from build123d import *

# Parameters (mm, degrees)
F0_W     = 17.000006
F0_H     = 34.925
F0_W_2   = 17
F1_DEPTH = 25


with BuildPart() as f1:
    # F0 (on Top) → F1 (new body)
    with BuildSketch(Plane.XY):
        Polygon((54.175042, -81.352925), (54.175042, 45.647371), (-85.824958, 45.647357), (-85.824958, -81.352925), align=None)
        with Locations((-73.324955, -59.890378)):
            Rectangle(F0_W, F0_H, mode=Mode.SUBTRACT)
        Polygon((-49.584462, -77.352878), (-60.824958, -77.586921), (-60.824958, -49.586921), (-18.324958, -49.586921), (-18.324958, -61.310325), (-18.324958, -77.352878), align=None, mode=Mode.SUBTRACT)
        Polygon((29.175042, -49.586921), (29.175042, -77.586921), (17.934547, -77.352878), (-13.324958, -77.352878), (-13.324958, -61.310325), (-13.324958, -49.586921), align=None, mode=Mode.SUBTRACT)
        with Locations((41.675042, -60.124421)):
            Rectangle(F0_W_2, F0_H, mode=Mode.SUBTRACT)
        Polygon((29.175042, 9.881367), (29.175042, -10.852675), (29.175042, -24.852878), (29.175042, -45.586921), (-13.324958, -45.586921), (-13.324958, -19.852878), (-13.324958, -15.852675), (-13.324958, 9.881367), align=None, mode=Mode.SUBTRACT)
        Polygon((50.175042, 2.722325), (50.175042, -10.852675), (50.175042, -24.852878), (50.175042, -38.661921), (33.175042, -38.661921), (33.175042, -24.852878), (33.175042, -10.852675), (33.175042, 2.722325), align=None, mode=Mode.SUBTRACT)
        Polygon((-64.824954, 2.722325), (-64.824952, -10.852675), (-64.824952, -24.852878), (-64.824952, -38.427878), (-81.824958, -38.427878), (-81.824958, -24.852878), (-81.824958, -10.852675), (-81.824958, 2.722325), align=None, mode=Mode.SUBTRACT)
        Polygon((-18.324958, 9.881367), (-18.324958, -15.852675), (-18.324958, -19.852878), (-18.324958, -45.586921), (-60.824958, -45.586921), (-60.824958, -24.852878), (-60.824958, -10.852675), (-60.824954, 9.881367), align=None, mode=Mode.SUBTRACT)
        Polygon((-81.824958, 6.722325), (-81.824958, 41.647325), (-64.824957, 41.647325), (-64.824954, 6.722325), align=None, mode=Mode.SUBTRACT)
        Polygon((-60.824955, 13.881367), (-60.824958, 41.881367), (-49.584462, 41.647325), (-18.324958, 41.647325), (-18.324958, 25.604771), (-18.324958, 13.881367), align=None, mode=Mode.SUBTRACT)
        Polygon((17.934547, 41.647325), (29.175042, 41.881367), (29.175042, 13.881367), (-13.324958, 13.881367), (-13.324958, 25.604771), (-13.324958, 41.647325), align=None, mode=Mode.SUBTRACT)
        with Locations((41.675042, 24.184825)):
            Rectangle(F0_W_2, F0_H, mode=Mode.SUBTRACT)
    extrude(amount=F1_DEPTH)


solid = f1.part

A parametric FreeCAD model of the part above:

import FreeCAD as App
import Part
import Sketcher
from FreeCAD import Vector

doc = App.newDocument("Part")
body = doc.addObject("PartDesign::Body", "Body")

sketch1 = doc.addObject("Sketcher::SketchObject", "Sketch")
body.addObject(sketch1)
sketch1.AttachmentSupport = (doc.XY_Plane, [""])
sketch1.MapMode = "FlatFace"
sketch1.addGeometry([
    Part.LineSegment(Vector(54, -81, 0), Vector(54, 46, 0)),
    Part.LineSegment(Vector(54, 46, 0), Vector(-86, 46, 0)),
    Part.LineSegment(Vector(-86, 46, 0), Vector(-86, -81, 0)),
    Part.LineSegment(Vector(-86, -81, 0), Vector(54, -81, 0)),
    Part.LineSegment(Vector(-65, -77, 0), Vector(-82, -77, 0)),
    Part.LineSegment(Vector(-82, -77, 0), Vector(-82, -42, 0)),
    Part.LineSegment(Vector(-82, -42, 0), Vector(-65, -42, 0)),
    Part.LineSegment(Vector(-65, -42, 0), Vector(-65, -77, 0)),
    Part.LineSegment(Vector(-18, -77, 0), Vector(-50, -77, 0)),
    Part.LineSegment(Vector(-50, -77, 0), Vector(-61, -78, 0)),
    Part.LineSegment(Vector(-61, -78, 0), Vector(-61, -50, 0)),
    Part.LineSegment(Vector(-61, -50, 0), Vector(-18, -50, 0)),
    Part.LineSegment(Vector(-18, -50, 0), Vector(-18, -77, 0)),
    Part.LineSegment(Vector(-13, -50, 0), Vector(29, -50, 0)),
    Part.LineSegment(Vector(29, -50, 0), Vector(29, -78, 0)),
    Part.LineSegment(Vector(29, -78, 0), Vector(18, -77, 0)),
    Part.LineSegment(Vector(18, -77, 0), Vector(-13, -77, 0)),
    Part.LineSegment(Vector(-13, -77, 0), Vector(-13, -50, 0)),
    Part.LineSegment(Vector(50, -78, 0), Vector(33, -78, 0)),
    Part.LineSegment(Vector(33, -78, 0), Vector(33, -43, 0)),
    Part.LineSegment(Vector(33, -43, 0), Vector(50, -43, 0)),
    Part.LineSegment(Vector(50, -43, 0), Vector(50, -78, 0)),
    Part.LineSegment(Vector(33, 3, 0), Vector(50, 3, 0)),
    Part.LineSegment(Vector(50, 3, 0), Vector(50, -39, 0)),
    Part.LineSegment(Vector(50, -39, 0), Vector(33, -39, 0)),
    Part.LineSegment(Vector(33, -39, 0), Vector(33, 3, 0)),
    Part.LineSegment(Vector(-82, 3, 0), Vector(-65, 3, 0)),
    Part.LineSegment(Vector(-65, 3, 0), Vector(-65, -11, 0)),
    Part.LineSegment(Vector(-65, -11, 0), Vector(-65, -38, 0)),
    Part.LineSegment(Vector(-65, -38, 0), Vector(-82, -38, 0)),
    Part.LineSegment(Vector(-82, -38, 0), Vector(-82, 3, 0)),
    Part.LineSegment(Vector(-61, 10, 0), Vector(-18, 10, 0)),
    Part.LineSegment(Vector(-18, 10, 0), Vector(-18, -46, 0)),
    Part.LineSegment(Vector(-18, -46, 0), Vector(-61, -46, 0)),
    Part.LineSegment(Vector(-61, -46, 0), Vector(-61, -11, 0)),
    Part.LineSegment(Vector(-61, -11, 0), Vector(-61, 10, 0)),
    Part.LineSegment(Vector(-65, 7, 0), Vector(-82, 7, 0)),
    Part.LineSegment(Vector(-82, 7, 0), Vector(-82, 42, 0)),
    Part.LineSegment(Vector(-82, 42, 0), Vector(-65, 42, 0)),
    Part.LineSegment(Vector(-65, 42, 0), Vector(-65, 7, 0)),
    Part.LineSegment(Vector(-18, 14, 0), Vector(-61, 14, 0)),
    Part.LineSegment(Vector(-61, 14, 0), Vector(-61, 42, 0)),
    Part.LineSegment(Vector(-61, 42, 0), Vector(-50, 42, 0)),
    Part.LineSegment(Vector(-50, 42, 0), Vector(-18, 42, 0)),
    Part.LineSegment(Vector(-18, 42, 0), Vector(-18, 14, 0)),
    Part.LineSegment(Vector(-13, 10, 0), Vector(29, 10, 0)),
    Part.LineSegment(Vector(29, 10, 0), Vector(29, -46, 0)),
    Part.LineSegment(Vector(29, -46, 0), Vector(-13, -46, 0)),
    Part.LineSegment(Vector(-13, -46, 0), Vector(-13, 10, 0)),
    Part.LineSegment(Vector(-13, 42, 0), Vector(18, 42, 0)),
    Part.LineSegment(Vector(18, 42, 0), Vector(29, 42, 0)),
    Part.LineSegment(Vector(29, 42, 0), Vector(29, 14, 0)),
    Part.LineSegment(Vector(29, 14, 0), Vector(-13, 14, 0)),
    Part.LineSegment(Vector(-13, 14, 0), Vector(-13, 42, 0)),
    Part.LineSegment(Vector(50, 7, 0), Vector(33, 7, 0)),
    Part.LineSegment(Vector(33, 7, 0), Vector(33, 42, 0)),
    Part.LineSegment(Vector(33, 42, 0), Vector(50, 42, 0)),
    Part.LineSegment(Vector(50, 42, 0), Vector(50, 7, 0)),
], False)
sketch1.addConstraint([
    Sketcher.Constraint("Coincident", 0, 2, 1, 1),
    Sketcher.Constraint("Coincident", 1, 2, 2, 1),
    Sketcher.Constraint("Coincident", 2, 2, 3, 1),
    Sketcher.Constraint("Coincident", 3, 2, 0, 1),
    Sketcher.Constraint("Coincident", 4, 2, 5, 1),
    Sketcher.Constraint("Coincident", 5, 2, 6, 1),
    Sketcher.Constraint("Coincident", 6, 2, 7, 1),
    Sketcher.Constraint("Coincident", 7, 2, 4, 1),
    Sketcher.Constraint("Coincident", 8, 2, 9, 1),
    Sketcher.Constraint("Coincident", 9, 2, 10, 1),
    Sketcher.Constraint("Coincident", 10, 2, 11, 1),
    Sketcher.Constraint("Coincident", 11, 2, 12, 1),
    Sketcher.Constraint("Coincident", 12, 2, 8, 1),
    Sketcher.Constraint("Coincident", 13, 2, 14, 1),
    Sketcher.Constraint("Coincident", 14, 2, 15, 1),
    Sketcher.Constraint("Coincident", 15, 2, 16, 1),
    Sketcher.Constraint("Coincident", 16, 2, 17, 1),
    Sketcher.Constraint("Coincident", 17, 2, 13, 1),
    Sketcher.Constraint("Coincident", 18, 2, 19, 1),
    Sketcher.Constraint("Coincident", 19, 2, 20, 1),
    Sketcher.Constraint("Coincident", 20, 2, 21, 1),
    Sketcher.Constraint("Coincident", 21, 2, 18, 1),
    Sketcher.Constraint("Coincident", 22, 2, 23, 1),
    Sketcher.Constraint("Coincident", 23, 2, 24, 1),
    Sketcher.Constraint("Coincident", 24, 2, 25, 1),
    Sketcher.Constraint("Coincident", 25, 2, 22, 1),
    Sketcher.Constraint("Coincident", 26, 2, 27, 1),
    Sketcher.Constraint("Coincident", 27, 2, 28, 1),
    Sketcher.Constraint("Coincident", 28, 2, 29, 1),
    Sketcher.Constraint("Coincident", 29, 2, 30, 1),
    Sketcher.Constraint("Coincident", 30, 2, 26, 1),
    Sketcher.Constraint("Coincident", 31, 2, 32, 1),
    Sketcher.Constraint("Coincident", 32, 2, 33, 1),
    Sketcher.Constraint("Coincident", 33, 2, 34, 1),
    Sketcher.Constraint("Coincident", 34, 2, 35, 1),
    Sketcher.Constraint("Coincident", 35, 2, 31, 1),
    Sketcher.Constraint("Coincident", 36, 2, 37, 1),
    Sketcher.Constraint("Coincident", 37, 2, 38, 1),
    Sketcher.Constraint("Coincident", 38, 2, 39, 1),
    Sketcher.Constraint("Coincident", 39, 2, 36, 1),
    Sketcher.Constraint("Coincident", 40, 2, 41, 1),
    Sketcher.Constraint("Coincident", 41, 2, 42, 1),
    Sketcher.Constraint("Coincident", 42, 2, 43, 1),
    Sketcher.Constraint("Coincident", 43, 2, 44, 1),
    Sketcher.Constraint("Coincident", 44, 2, 40, 1),
    Sketcher.Constraint("Coincident", 45, 2, 46, 1),
    Sketcher.Constraint("Coincident", 46, 2, 47, 1),
    Sketcher.Constraint("Coincident", 47, 2, 48, 1),
    Sketcher.Constraint("Coincident", 48, 2, 45, 1),
    Sketcher.Constraint("Coincident", 49, 2, 50, 1),
    Sketcher.Constraint("Coincident", 50, 2, 51, 1),
    Sketcher.Constraint("Coincident", 51, 2, 52, 1),
    Sketcher.Constraint("Coincident", 52, 2, 53, 1),
    Sketcher.Constraint("Coincident", 53, 2, 49, 1),
    Sketcher.Constraint("Coincident", 54, 2, 55, 1),
    Sketcher.Constraint("Coincident", 55, 2, 56, 1),
    Sketcher.Constraint("Coincident", 56, 2, 57, 1),
    Sketcher.Constraint("Coincident", 57, 2, 54, 1),
    Sketcher.Constraint("Vertical", 0),
    Sketcher.Constraint("Vertical", 2),
    Sketcher.Constraint("Horizontal", 3),
    Sketcher.Constraint("Horizontal", 4),
    Sketcher.Constraint("Vertical", 5),
    Sketcher.Constraint("Horizontal", 6),
    Sketcher.Constraint("Vertical", 7),
    Sketcher.Constraint("Horizontal", 8),
    Sketcher.Constraint("Vertical", 10),
    Sketcher.Constraint("Horizontal", 11),
    Sketcher.Constraint("Vertical", 12),
    Sketcher.Constraint("Horizontal", 13),
    Sketcher.Constraint("Vertical", 14),
    Sketcher.Constraint("Horizontal", 16),
    Sketcher.Constraint("Vertical", 17),
    Sketcher.Constraint("Horizontal", 18),
    Sketcher.Constraint("Vertical", 19),
    Sketcher.Constraint("Horizontal", 20),
    Sketcher.Constraint("Vertical", 21),
    Sketcher.Constraint("Horizontal", 22),
    Sketcher.Constraint("Vertical", 23),
    Sketcher.Constraint("Horizontal", 24),
    Sketcher.Constraint("Vertical", 25),
    Sketcher.Constraint("Horizontal", 26),
    Sketcher.Constraint("Vertical", 28),
    Sketcher.Constraint("Horizontal", 29),
    Sketcher.Constraint("Vertical", 30),
    Sketcher.Constraint("Horizontal", 31),
    Sketcher.Constraint("Vertical", 32),
    Sketcher.Constraint("Horizontal", 33),
    Sketcher.Constraint("Vertical", 34),
    Sketcher.Constraint("Horizontal", 36),
    Sketcher.Constraint("Vertical", 37),
    Sketcher.Constraint("Horizontal", 38),
    Sketcher.Constraint("Horizontal", 40),
    Sketcher.Constraint("Horizontal", 43),
    Sketcher.Constraint("Vertical", 44),
    Sketcher.Constraint("Horizontal", 45),
    Sketcher.Constraint("Vertical", 46),
    Sketcher.Constraint("Horizontal", 47),
    Sketcher.Constraint("Vertical", 48),
    Sketcher.Constraint("Horizontal", 49),
    Sketcher.Constraint("Vertical", 51),
    Sketcher.Constraint("Horizontal", 52),
    Sketcher.Constraint("Vertical", 53),
    Sketcher.Constraint("Horizontal", 54),
    Sketcher.Constraint("Vertical", 55),
    Sketcher.Constraint("Horizontal", 56),
    Sketcher.Constraint("Vertical", 57),
    Sketcher.Constraint("Perpendicular", 1, 27),
    Sketcher.Constraint("Parallel", 27, 35),
    Sketcher.Constraint("Parallel", 35, 39),
    Sketcher.Constraint("Parallel", 39, 41),
    Sketcher.Constraint("Parallel", 15, 42),
    Sketcher.Constraint("Parallel", 9, 50),
    Sketcher.Constraint("Horizontal", 7, 2, 8, 2),
    Sketcher.Constraint("Horizontal", 11, 2, 13, 2),
    Sketcher.Constraint("Horizontal", 9, 2, 14, 2),
    Sketcher.Constraint("Horizontal", 12, 2, 15, 2),
    Sketcher.Constraint("Horizontal", 14, 2, 18, 2),
    Sketcher.Constraint("Horizontal", 25, 2, 26, 2),
    Sketcher.Constraint("Horizontal", 27, 2, 34, 2),
    Sketcher.Constraint("Horizontal", 38, 2, 42, 2),
    Sketcher.Constraint("Horizontal", 35, 2, 45, 2),
    Sketcher.Constraint("Horizontal", 33, 2, 46, 2),
    Sketcher.Constraint("Horizontal", 43, 2, 49, 2),
    Sketcher.Constraint("Horizontal", 41, 2, 50, 2),
    Sketcher.Constraint("Horizontal", 44, 2, 51, 2),
    Sketcher.Constraint("Horizontal", 39, 2, 54, 2),
    Sketcher.Constraint("Horizontal", 53, 2, 55, 2),
    Sketcher.Constraint("Vertical", 21, 2, 22, 2),
    Sketcher.Constraint("Vertical", 19, 2, 24, 2),
    Sketcher.Constraint("Vertical", 7, 2, 27, 2),
    Sketcher.Constraint("Vertical", 5, 2, 29, 2),
    Sketcher.Constraint("Vertical", 12, 2, 31, 2),
    Sketcher.Constraint("Vertical", 10, 2, 33, 2),
    Sketcher.Constraint("Vertical", 30, 2, 36, 2),
    Sketcher.Constraint("Vertical", 26, 2, 39, 2),
    Sketcher.Constraint("Vertical", 35, 2, 40, 2),
    Sketcher.Constraint("Vertical", 34, 2, 41, 2),
    Sketcher.Constraint("Vertical", 8, 2, 42, 2),
    Sketcher.Constraint("Vertical", 32, 2, 43, 2),
    Sketcher.Constraint("Vertical", 14, 2, 45, 2),
    Sketcher.Constraint("Vertical", 17, 2, 47, 2),
    Sketcher.Constraint("Vertical", 15, 2, 49, 2),
    Sketcher.Constraint("Vertical", 46, 2, 50, 2),
    Sketcher.Constraint("Vertical", 48, 2, 52, 2),
    Sketcher.Constraint("Vertical", 25, 2, 54, 2),
    Sketcher.Constraint("Vertical", 23, 2, 56, 2),
    Sketcher.Constraint("Equal", 11, 13),
    Sketcher.Constraint("Equal", 24, 38),
    Sketcher.Constraint("Equal", 7, 19),
    Sketcher.Constraint("Equal", 21, 37),
    Sketcher.Constraint("Equal", 17, 44),
    Sketcher.Constraint("DistanceX", 3, 1, 3, 2, 140.0),
    Sketcher.Constraint("DistanceX", 18, 2, 18, 1, 17.0),
    Sketcher.Constraint("DistanceY", 10, 1, 10, 2, 28.0),
    Sketcher.Constraint("DistanceX", 11, 1, 11, 2, 42.5),
    Sketcher.Constraint("DistanceX", 2, 2, 4, 2, 4.0),
    Sketcher.Constraint("DistanceX", 4, 2, 9, 2, 21.0),
    Sketcher.Constraint("DistanceX", 13, 2, 3, 2, 25.0),
    Sketcher.Constraint("DistanceX", 14, 2, 18, 2, 4.0),
    Sketcher.Constraint("DistanceY", 20, 2, 23, 2, 4.0),
    Sketcher.Constraint("DistanceY", 6, 2, 28, 2, 4.0),
    Sketcher.Constraint("DistanceY", 11, 2, 32, 2, 4.0),
    Sketcher.Constraint("DistanceY", 30, 2, 36, 2, 4.0),
    Sketcher.Constraint("DistanceY", 35, 2, 40, 2, 4.0),
    Sketcher.Constraint("DistanceY", 5, 1, 5, 2, 34.925),
    Sketcher.Constraint("Distance", 27, 13.575),
    Sketcher.Constraint("DistanceY", 2, 2, 2, 1, 127.000282),
    Sketcher.Constraint("DistanceY", 44, 2, 44, 1, 27.765958),
    Sketcher.Constraint("Distance", 15, 11.242931),
    Sketcher.Constraint("DistanceY", 23, 2, 23, 1, 41.384246),
    Sketcher.Constraint("DistanceX", -1, 1, 0, 2, 54.175042),
    Sketcher.Constraint("DistanceY", -1, 1, 0, 2, 45.647371),
    Sketcher.Constraint("DistanceY", 4, 2, -1, 1, 77.352878),
])
pad1 = doc.addObject("PartDesign::Pad", "Pad")
body.addObject(pad1)
pad1.Profile = sketch1
pad1.Length = 25

doc.recompute()
